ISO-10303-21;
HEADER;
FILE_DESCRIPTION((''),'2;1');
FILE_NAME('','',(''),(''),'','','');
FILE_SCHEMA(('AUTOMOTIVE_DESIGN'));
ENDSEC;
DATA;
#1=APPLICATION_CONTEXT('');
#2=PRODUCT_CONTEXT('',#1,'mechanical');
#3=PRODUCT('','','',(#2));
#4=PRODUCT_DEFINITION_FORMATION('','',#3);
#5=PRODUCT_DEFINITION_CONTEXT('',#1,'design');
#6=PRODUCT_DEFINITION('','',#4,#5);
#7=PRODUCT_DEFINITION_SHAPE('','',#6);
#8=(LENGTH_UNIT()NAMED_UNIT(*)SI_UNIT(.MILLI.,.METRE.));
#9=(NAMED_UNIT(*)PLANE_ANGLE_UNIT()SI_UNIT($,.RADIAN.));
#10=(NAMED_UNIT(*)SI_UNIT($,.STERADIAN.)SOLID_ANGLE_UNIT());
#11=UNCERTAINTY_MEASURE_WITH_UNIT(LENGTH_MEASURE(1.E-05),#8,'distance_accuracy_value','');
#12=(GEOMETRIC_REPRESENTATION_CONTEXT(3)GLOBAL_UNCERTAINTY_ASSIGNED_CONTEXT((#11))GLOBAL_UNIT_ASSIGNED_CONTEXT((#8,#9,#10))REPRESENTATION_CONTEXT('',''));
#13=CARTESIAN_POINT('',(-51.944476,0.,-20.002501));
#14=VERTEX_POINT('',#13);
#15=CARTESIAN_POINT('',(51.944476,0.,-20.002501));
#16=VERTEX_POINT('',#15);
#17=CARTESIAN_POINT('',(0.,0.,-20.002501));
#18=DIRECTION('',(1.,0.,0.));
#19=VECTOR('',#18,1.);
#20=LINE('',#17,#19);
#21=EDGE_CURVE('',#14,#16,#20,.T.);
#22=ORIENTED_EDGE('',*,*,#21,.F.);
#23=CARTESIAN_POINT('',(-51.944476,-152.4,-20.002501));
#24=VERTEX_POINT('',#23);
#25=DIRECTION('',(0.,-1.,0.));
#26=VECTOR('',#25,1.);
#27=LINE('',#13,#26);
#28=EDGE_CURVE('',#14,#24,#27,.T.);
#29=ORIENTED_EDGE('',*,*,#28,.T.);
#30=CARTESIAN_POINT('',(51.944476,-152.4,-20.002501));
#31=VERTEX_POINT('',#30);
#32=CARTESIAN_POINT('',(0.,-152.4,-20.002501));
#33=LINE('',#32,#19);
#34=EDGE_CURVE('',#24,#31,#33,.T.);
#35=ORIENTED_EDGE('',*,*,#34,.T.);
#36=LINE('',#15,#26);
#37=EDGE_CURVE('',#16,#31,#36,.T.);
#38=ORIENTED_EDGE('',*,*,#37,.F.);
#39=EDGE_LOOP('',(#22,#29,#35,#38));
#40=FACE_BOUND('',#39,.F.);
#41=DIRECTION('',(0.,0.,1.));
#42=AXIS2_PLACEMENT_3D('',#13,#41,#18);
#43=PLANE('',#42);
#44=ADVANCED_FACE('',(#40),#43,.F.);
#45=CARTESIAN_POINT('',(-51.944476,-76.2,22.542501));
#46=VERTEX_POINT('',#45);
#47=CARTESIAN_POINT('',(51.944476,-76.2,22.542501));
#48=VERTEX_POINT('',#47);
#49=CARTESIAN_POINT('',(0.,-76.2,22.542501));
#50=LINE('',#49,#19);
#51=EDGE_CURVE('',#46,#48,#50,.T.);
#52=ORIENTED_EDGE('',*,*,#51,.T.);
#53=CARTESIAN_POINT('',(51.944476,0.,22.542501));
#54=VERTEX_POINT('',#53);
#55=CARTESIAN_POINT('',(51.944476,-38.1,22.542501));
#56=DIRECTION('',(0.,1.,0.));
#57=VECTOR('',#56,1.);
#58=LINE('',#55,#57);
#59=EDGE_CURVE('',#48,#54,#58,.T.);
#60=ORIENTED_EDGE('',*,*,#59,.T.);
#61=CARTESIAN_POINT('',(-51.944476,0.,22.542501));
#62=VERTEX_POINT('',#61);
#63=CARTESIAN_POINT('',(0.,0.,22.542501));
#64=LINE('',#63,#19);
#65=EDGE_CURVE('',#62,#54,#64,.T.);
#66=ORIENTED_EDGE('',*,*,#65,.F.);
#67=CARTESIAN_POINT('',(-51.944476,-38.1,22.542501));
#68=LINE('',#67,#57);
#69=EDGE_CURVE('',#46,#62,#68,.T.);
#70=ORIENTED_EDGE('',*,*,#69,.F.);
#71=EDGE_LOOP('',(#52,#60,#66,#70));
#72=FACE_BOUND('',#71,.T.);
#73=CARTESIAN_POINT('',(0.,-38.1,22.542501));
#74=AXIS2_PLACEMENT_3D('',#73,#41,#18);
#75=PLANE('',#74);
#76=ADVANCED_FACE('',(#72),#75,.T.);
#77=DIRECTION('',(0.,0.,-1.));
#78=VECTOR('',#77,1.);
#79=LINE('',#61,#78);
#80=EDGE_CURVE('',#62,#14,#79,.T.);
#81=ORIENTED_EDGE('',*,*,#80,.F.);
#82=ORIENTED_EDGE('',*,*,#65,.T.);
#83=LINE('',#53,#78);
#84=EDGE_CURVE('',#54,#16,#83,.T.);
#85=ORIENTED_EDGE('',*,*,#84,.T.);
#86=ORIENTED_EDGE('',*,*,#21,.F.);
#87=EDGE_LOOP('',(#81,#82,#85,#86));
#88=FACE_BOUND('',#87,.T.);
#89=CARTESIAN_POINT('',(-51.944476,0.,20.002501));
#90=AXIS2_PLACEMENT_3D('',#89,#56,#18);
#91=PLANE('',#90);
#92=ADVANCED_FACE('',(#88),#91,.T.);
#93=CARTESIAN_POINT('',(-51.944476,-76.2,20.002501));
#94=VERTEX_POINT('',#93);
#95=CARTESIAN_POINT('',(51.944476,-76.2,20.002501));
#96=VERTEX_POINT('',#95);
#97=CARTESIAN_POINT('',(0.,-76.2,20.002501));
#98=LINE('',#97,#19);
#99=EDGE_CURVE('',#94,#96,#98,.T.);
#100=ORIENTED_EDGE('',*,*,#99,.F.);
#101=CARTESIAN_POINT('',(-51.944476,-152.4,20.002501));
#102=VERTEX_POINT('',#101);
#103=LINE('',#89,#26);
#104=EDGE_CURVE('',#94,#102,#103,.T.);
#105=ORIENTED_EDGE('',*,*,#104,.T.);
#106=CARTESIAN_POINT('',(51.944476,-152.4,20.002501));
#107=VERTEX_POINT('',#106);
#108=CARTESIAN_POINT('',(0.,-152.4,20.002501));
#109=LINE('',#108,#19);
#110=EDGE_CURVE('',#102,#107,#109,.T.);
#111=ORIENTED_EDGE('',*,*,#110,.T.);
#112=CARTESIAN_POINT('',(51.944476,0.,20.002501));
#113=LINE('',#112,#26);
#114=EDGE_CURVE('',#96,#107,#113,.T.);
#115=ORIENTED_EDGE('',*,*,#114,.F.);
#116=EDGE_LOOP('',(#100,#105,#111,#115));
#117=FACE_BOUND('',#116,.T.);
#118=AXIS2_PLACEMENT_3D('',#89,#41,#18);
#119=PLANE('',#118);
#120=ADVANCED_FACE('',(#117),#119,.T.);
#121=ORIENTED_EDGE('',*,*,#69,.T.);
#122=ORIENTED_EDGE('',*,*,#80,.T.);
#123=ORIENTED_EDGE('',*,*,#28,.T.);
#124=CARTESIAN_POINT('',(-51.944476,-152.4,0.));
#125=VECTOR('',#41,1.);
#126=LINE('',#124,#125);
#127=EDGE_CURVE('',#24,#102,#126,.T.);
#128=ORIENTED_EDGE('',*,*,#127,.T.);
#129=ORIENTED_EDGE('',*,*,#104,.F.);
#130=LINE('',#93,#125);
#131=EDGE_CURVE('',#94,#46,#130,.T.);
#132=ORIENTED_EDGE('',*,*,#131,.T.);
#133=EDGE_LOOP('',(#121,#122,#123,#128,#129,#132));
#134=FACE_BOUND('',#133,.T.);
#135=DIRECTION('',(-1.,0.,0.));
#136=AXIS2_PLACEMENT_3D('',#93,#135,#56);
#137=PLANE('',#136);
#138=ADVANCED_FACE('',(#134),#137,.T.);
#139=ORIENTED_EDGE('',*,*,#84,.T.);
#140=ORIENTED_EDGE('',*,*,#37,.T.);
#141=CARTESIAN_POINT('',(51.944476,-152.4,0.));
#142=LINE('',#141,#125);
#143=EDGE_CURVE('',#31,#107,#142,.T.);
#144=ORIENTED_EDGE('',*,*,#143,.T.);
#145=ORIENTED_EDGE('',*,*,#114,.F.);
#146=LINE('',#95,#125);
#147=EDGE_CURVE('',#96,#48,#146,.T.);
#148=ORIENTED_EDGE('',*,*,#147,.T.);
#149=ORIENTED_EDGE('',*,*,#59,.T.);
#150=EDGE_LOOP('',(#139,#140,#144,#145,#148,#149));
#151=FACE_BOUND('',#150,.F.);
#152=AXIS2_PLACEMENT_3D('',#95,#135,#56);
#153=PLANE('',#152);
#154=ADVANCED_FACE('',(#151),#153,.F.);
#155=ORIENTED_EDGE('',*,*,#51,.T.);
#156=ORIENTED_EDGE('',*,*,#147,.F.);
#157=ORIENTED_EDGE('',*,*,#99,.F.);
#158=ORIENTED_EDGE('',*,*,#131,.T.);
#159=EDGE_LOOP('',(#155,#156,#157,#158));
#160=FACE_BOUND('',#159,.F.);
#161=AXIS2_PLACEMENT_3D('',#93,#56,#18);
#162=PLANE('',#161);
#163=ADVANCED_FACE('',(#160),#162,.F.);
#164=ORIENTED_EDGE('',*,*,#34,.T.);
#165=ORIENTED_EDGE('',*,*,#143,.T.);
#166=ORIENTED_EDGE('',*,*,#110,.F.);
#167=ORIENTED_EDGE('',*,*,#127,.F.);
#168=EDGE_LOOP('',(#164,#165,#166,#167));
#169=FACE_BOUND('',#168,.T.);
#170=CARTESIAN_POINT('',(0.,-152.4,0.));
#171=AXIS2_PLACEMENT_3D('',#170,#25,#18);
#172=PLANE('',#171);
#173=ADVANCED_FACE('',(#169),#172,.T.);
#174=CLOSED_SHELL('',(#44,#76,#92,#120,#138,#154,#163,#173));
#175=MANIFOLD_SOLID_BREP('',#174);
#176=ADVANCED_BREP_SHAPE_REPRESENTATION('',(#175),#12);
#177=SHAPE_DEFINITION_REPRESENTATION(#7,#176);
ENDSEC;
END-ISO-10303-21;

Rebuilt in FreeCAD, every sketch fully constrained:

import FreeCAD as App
import Part
import Sketcher
Q = App.Units.Quantity

doc = App.newDocument("Part")
body = doc.addObject("PartDesign::Body", "Body")

sketch1 = body.newObject("Sketcher::SketchObject", "Sketch")
sketch1.AttachmentSupport = (doc.getObject("XZ_Plane"), [""])
sketch1.MapMode = "FlatFace"
sketch1.addGeometry([
    Part.LineSegment(App.Vector(-52, 20, 0), App.Vector(-52, -20, 0)),
    Part.LineSegment(App.Vector(-52, -20, 0), App.Vector(52, -20, 0)),
    Part.LineSegment(App.Vector(52, -20, 0), App.Vector(52, 20, 0)),
    Part.LineSegment(App.Vector(52, 20, 0), App.Vector(-52, 20, 0)),
], False)
sketch1.addConstraint([
    Sketcher.Constraint("Coincident", 0, 2, 1, 1),
    Sketcher.Constraint("Coincident", 1, 2, 2, 1),
    Sketcher.Constraint("Coincident", 2, 2, 3, 1),
    Sketcher.Constraint("Coincident", 3, 2, 0, 1),
    Sketcher.Constraint("Vertical", 0),
    Sketcher.Constraint("Horizontal", 1),
    Sketcher.Constraint("Vertical", 2),
    Sketcher.Constraint("Horizontal", 3),
    Sketcher.Constraint("Symmetric", 0, 2, 2, 2, -1, 1),
    Sketcher.Constraint("DistanceY", 0, 2, 0, 1, Q("1.5750001 in")),
    Sketcher.Constraint("DistanceX", 1, 1, 1, 2, 103.888952),
])
pad1 = body.newObject("PartDesign::Pad", "Pad")
pad1.Profile = sketch1
pad1.Length = Q("6 in")

sketch2 = body.newObject("Sketcher::SketchObject", "Sketch001")
sketch2.AttachmentSupport = (doc.getObject("XY_Plane"), [""])
sketch2.MapMode = "FlatFace"
sketch2.AttachmentOffset = App.Placement(App.Vector(0, 0, 0.7875 * 25.4), App.Rotation())
sketch2.addGeometry([
    Part.LineSegment(App.Vector(-52, 0, 0), App.Vector(-52, -76, 0)),
    Part.LineSegment(App.Vector(-52, -76, 0), App.Vector(52, -76, 0)),
    Part.LineSegment(App.Vector(52, -76, 0), App.Vector(52, 0, 0)),
    Part.LineSegment(App.Vector(52, 0, 0), App.Vector(-52, 0, 0)),
], False)
sketch2.addConstraint([
    Sketcher.Constraint("Coincident", 0, 2, 1, 1),
    Sketcher.Constraint("Coincident", 1, 2, 2, 1),
    Sketcher.Constraint("Coincident", 2, 2, 3, 1),
    Sketcher.Constraint("Coincident", 3, 2, 0, 1),
    Sketcher.Constraint("Vertical", 0),
    Sketcher.Constraint("Horizontal", 1),
    Sketcher.Constraint("Vertical", 2),
    Sketcher.Constraint("Horizontal", 3),
    Sketcher.Constraint("Symmetric", 2, 2, 3, 2, -1, 1),
    Sketcher.Constraint("DistanceY", 0, 2, 0, 1, Q("3 in")),
    Sketcher.Constraint("DistanceX", 1, 1, 1, 2, 103.888952),
])
pad2 = body.newObject("PartDesign::Pad", "Pad001")
pad2.Profile = sketch2
pad2.Length = Q("0.1 in")

doc.recompute()
